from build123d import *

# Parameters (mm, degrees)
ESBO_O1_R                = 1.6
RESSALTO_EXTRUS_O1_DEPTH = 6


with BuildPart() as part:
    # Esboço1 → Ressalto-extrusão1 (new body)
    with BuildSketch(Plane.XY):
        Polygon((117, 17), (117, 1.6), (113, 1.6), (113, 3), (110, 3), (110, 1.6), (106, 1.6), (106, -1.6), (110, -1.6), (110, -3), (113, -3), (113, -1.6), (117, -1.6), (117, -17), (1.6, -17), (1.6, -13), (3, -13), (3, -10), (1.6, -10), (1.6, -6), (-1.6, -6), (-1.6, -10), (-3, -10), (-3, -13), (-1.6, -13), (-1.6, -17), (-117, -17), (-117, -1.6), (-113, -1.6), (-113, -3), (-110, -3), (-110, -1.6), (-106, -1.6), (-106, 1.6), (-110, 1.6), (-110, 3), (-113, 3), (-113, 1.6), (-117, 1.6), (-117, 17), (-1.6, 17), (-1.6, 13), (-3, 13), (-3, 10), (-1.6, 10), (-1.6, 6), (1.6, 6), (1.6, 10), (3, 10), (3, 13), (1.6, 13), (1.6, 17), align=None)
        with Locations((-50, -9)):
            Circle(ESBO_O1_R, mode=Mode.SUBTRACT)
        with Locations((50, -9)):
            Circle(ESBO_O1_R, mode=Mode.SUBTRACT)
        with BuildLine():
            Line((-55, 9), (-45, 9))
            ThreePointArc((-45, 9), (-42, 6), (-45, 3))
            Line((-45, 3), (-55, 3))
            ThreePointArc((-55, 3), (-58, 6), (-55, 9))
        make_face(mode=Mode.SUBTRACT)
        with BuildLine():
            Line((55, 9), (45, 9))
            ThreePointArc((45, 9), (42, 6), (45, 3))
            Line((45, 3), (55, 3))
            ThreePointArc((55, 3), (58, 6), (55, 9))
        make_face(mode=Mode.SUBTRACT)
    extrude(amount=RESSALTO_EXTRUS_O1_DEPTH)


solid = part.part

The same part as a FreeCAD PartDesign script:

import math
import FreeCAD as App
import Part
import Sketcher
from FreeCAD import Vector

doc = App.newDocument("Part")
body = doc.addObject("PartDesign::Body", "Body")

# Sketch on XY plane
sketch1 = body.newObject("Sketcher::SketchObject", "Sketch")
sketch1.AttachmentSupport = (doc.getObject("XY_Plane"), [""])
sketch1.MapMode = "FlatFace"
sketch1.addGeometry([
    Part.LineSegment(Vector(117, 1.6, 0), Vector(117, 17, 0)),  # 0
    Part.LineSegment(Vector(117, 17, 0), Vector(1.6, 17, 0)),  # 1
    Part.LineSegment(Vector(1.6, 17, 0), Vector(1.6, 13, 0)),  # 2
    Part.LineSegment(Vector(1.6, 13, 0), Vector(3, 13, 0)),  # 3
    Part.LineSegment(Vector(3, 13, 0), Vector(3, 10, 0)),  # 4
    Part.LineSegment(Vector(3, 10, 0), Vector(1.6, 10, 0)),  # 5
    Part.LineSegment(Vector(1.6, 10, 0), Vector(1.6, 6, 0)),  # 6
    Part.LineSegment(Vector(1.6, 6, 0), Vector(-1.6, 6, 0)),  # 7
    Part.LineSegment(Vector(-1.6, 6, 0), Vector(-1.6, 10, 0)),  # 8
    Part.LineSegment(Vector(-1.6, 10, 0), Vector(-3, 10, 0)),  # 9
    Part.LineSegment(Vector(-3, 10, 0), Vector(-3, 13, 0)),  # 10
    Part.LineSegment(Vector(-3, 13, 0), Vector(-1.6, 13, 0)),  # 11
    Part.LineSegment(Vector(-1.6, 13, 0), Vector(-1.6, 17, 0)),  # 12
    Part.LineSegment(Vector(-1.6, 17, 0), Vector(-117, 17, 0)),  # 13
    Part.LineSegment(Vector(-117, 17, 0), Vector(-117, 1.6, 0)),  # 14
    Part.LineSegment(Vector(-117, 1.6, 0), Vector(-113, 1.6, 0)),  # 15
    Part.LineSegment(Vector(-113, 1.6, 0), Vector(-113, 3, 0)),  # 16
    Part.LineSegment(Vector(-113, 3, 0), Vector(-110, 3, 0)),  # 17
    Part.LineSegment(Vector(-110, 3, 0), Vector(-110, 1.6, 0)),  # 18
    Part.LineSegment(Vector(-110, 1.6, 0), Vector(-106, 1.6, 0)),  # 19
    Part.LineSegment(Vector(-106, 1.6, 0), Vector(-106, -1.6, 0)),  # 20
    Part.LineSegment(Vector(-106, -1.6, 0), Vector(-110, -1.6, 0)),  # 21
    Part.LineSegment(Vector(-110, -1.6, 0), Vector(-110, -3, 0)),  # 22
    Part.LineSegment(Vector(-110, -3, 0), Vector(-113, -3, 0)),  # 23
    Part.LineSegment(Vector(-113, -3, 0), Vector(-113, -1.6, 0)),  # 24
    Part.LineSegment(Vector(-113, -1.6, 0), Vector(-117, -1.6, 0)),  # 25
    Part.LineSegment(Vector(-117, -1.6, 0), Vector(-117, -17, 0)),  # 26
    Part.LineSegment(Vector(-117, -17, 0), Vector(-1.6, -17, 0)),  # 27
    Part.LineSegment(Vector(-1.6, -17, 0), Vector(-1.6, -13, 0)),  # 28
    Part.LineSegment(Vector(-1.6, -13, 0), Vector(-3, -13, 0)),  # 29
    Part.LineSegment(Vector(-3, -13, 0), Vector(-3, -10, 0)),  # 30
    Part.LineSegment(Vector(-3, -10, 0), Vector(-1.6, -10, 0)),  # 31
    Part.LineSegment(Vector(-1.6, -10, 0), Vector(-1.6, -6, 0)),  # 32
    Part.LineSegment(Vector(-1.6, -6, 0), Vector(1.6, -6, 0)),  # 33
    Part.LineSegment(Vector(1.6, -6, 0), Vector(1.6, -10, 0)),  # 34
    Part.LineSegment(Vector(1.6, -10, 0), Vector(3, -10, 0)),  # 35
    Part.LineSegment(Vector(3, -10, 0), Vector(3, -13, 0)),  # 36
    Part.LineSegment(Vector(3, -13, 0), Vector(1.6, -13, 0)),  # 37
    Part.LineSegment(Vector(1.6, -13, 0), Vector(1.6, -17, 0)),  # 38
    Part.LineSegment(Vector(1.6, -17, 0), Vector(117, -17, 0)),  # 39
    Part.LineSegment(Vector(117, -17, 0), Vector(117, -1.6, 0)),  # 40
    Part.LineSegment(Vector(117, -1.6, 0), Vector(113, -1.6, 0)),  # 41
    Part.LineSegment(Vector(113, -1.6, 0), Vector(113, -3, 0)),  # 42
    Part.LineSegment(Vector(113, -3, 0), Vector(110, -3, 0)),  # 43
    Part.LineSegment(Vector(110, -3, 0), Vector(110, -1.6, 0)),  # 44
    Part.LineSegment(Vector(110, -1.6, 0), Vector(106, -1.6, 0)),  # 45
    Part.LineSegment(Vector(106, -1.6, 0), Vector(106, 1.6, 0)),  # 46
    Part.LineSegment(Vector(106, 1.6, 0), Vector(110, 1.6, 0)),  # 47
    Part.LineSegment(Vector(110, 1.6, 0), Vector(110, 3, 0)),  # 48
    Part.LineSegment(Vector(110, 3, 0), Vector(113, 3, 0)),  # 49
    Part.LineSegment(Vector(113, 3, 0), Vector(113, 1.6, 0)),  # 50
    Part.LineSegment(Vector(113, 1.6, 0), Vector(117, 1.6, 0)),  # 51
    Part.Circle(Vector(50, -9, 0), Vector(0, 0, 1), 1.6),  # 52
    Part.Circle(Vector(-50, -9, 0), Vector(0, 0, 1), 1.6),  # 53
    Part.ArcOfCircle(Part.Circle(Vector(55, 6, 0), Vector(0, 0, 1), 3), math.radians(-90), math.radians(90)),  # 54
    Part.LineSegment(Vector(55, 3, 0), Vector(45, 3, 0)),  # 55
    Part.ArcOfCircle(Part.Circle(Vector(45, 6, 0), Vector(0, 0, 1), 3), math.radians(90), math.radians(270)),  # 56
    Part.LineSegment(Vector(45, 9, 0), Vector(55, 9, 0)),  # 57
    Part.LineSegment(Vector(-55, 9, 0), Vector(-45, 9, 0)),  # 58
    Part.ArcOfCircle(Part.Circle(Vector(-45, 6, 0), Vector(0, 0, 1), 3), math.radians(-90), math.radians(90)),  # 59
    Part.LineSegment(Vector(-45, 3, 0), Vector(-55, 3, 0)),  # 60
    Part.ArcOfCircle(Part.Circle(Vector(-55, 6, 0), Vector(0, 0, 1), 3), math.radians(90), math.radians(270)),  # 61
], False)
sketch1.addConstraint([
    Sketcher.Constraint("Coincident", 0, 2, 1, 1),
    Sketcher.Constraint("Coincident", 1, 2, 2, 1),
    Sketcher.Constraint("Coincident", 2, 2, 3, 1),
    Sketcher.Constraint("Coincident", 3, 2, 4, 1),
    Sketcher.Constraint("Coincident", 4, 2, 5, 1),
    Sketcher.Constraint("Coincident", 5, 2, 6, 1),
    Sketcher.Constraint("Coincident", 6, 2, 7, 1),
    Sketcher.Constraint("Coincident", 7, 2, 8, 1),
    Sketcher.Constraint("Coincident", 8, 2, 9, 1),
    Sketcher.Constraint("Coincident", 9, 2, 10, 1),
    Sketcher.Constraint("Coincident", 10, 2, 11, 1),
    Sketcher.Constraint("Coincident", 11, 2, 12, 1),
    Sketcher.Constraint("Coincident", 12, 2, 13, 1),
    Sketcher.Constraint("Coincident", 13, 2, 14, 1),
    Sketcher.Constraint("Coincident", 14, 2, 15, 1),
    Sketcher.Constraint("Coincident", 15, 2, 16, 1),
    Sketcher.Constraint("Coincident", 16, 2, 17, 1),
    Sketcher.Constraint("Coincident", 17, 2, 18, 1),
    Sketcher.Constraint("Coincident", 18, 2, 19, 1),
    Sketcher.Constraint("Coincident", 19, 2, 20, 1),
    Sketcher.Constraint("Coincident", 20, 2, 21, 1),
    Sketcher.Constraint("Coincident", 21, 2, 22, 1),
    Sketcher.Constraint("Coincident", 22, 2, 23, 1),
    Sketcher.Constraint("Coincident", 23, 2, 24, 1),
    Sketcher.Constraint("Coincident", 24, 2, 25, 1),
    Sketcher.Constraint("Coincident", 25, 2, 26, 1),
    Sketcher.Constraint("Coincident", 26, 2, 27, 1),
    Sketcher.Constraint("Coincident", 27, 2, 28, 1),
    Sketcher.Constraint("Coincident", 28, 2, 29, 1),
    Sketcher.Constraint("Coincident", 29, 2, 30, 1),
    Sketcher.Constraint("Coincident", 30, 2, 31, 1),
    Sketcher.Constraint("Coincident", 31, 2, 32, 1),
    Sketcher.Constraint("Coincident", 32, 2, 33, 1),
    Sketcher.Constraint("Coincident", 33, 2, 34, 1),
    Sketcher.Constraint("Coincident", 34, 2, 35, 1),
    Sketcher.Constraint("Coincident", 35, 2, 36, 1),
    Sketcher.Constraint("Coincident", 36, 2, 37, 1),
    Sketcher.Constraint("Coincident", 37, 2, 38, 1),
    Sketcher.Constraint("Coincident", 38, 2, 39, 1),
    Sketcher.Constraint("Coincident", 39, 2, 40, 1),
    Sketcher.Constraint("Coincident", 40, 2, 41, 1),
    Sketcher.Constraint("Coincident", 41, 2, 42, 1),
    Sketcher.Constraint("Coincident", 42, 2, 43, 1),
    Sketcher.Constraint("Coincident", 43, 2, 44, 1),
    Sketcher.Constraint("Coincident", 44, 2, 45, 1),
    Sketcher.Constraint("Coincident", 45, 2, 46, 1),
    Sketcher.Constraint("Coincident", 46, 2, 47, 1),
    Sketcher.Constraint("Coincident", 47, 2, 48, 1),
    Sketcher.Constraint("Coincident", 48, 2, 49, 1),
    Sketcher.Constraint("Coincident", 49, 2, 50, 1),
    Sketcher.Constraint("Coincident", 50, 2, 51, 1),
    Sketcher.Constraint("Coincident", 51, 2, 0, 1),
    Sketcher.Constraint("Tangent", 54, 1, 55, 1),
    Sketcher.Constraint("Tangent", 55, 2, 56, 2),
    Sketcher.Constraint("Tangent", 56, 1, 57, 1),
    Sketcher.Constraint("Tangent", 57, 2, 54, 2),
    Sketcher.Constraint("Tangent", 58, 2, 59, 2),
    Sketcher.Constraint("Tangent", 59, 1, 60, 1),
    Sketcher.Constraint("Tangent", 60, 2, 61, 2),
    Sketcher.Constraint("Tangent", 61, 1, 58, 1),
    Sketcher.Constraint("Vertical", 0),
    Sketcher.Constraint("Horizontal", 1),
    Sketcher.Constraint("Vertical", 2),
    Sketcher.Constraint("Horizontal", 3),
    Sketcher.Constraint("Vertical", 4),
    Sketcher.Constraint("Horizontal", 5),
    Sketcher.Constraint("Vertical", 6),
    Sketcher.Constraint("Horizontal", 7),
    Sketcher.Constraint("Vertical", 8),
    Sketcher.Constraint("Horizontal", 9),
    Sketcher.Constraint("Vertical", 10),
    Sketcher.Constraint("Horizontal", 11),
    Sketcher.Constraint("Vertical", 12),
    Sketcher.Constraint("Horizontal", 13),
    Sketcher.Constraint("Vertical", 14),
    Sketcher.Constraint("Horizontal", 15),
    Sketcher.Constraint("Vertical", 16),
    Sketcher.Constraint("Horizontal", 17),
    Sketcher.Constraint("Vertical", 18),
    Sketcher.Constraint("Horizontal", 19),
    Sketcher.Constraint("Vertical", 20),
    Sketcher.Constraint("Horizontal", 21),
    Sketcher.Constraint("Vertical", 22),
    Sketcher.Constraint("Horizontal", 23),
    Sketcher.Constraint("Vertical", 24),
    Sketcher.Constraint("Horizontal", 25),
    Sketcher.Constraint("Vertical", 26),
    Sketcher.Constraint("Horizontal", 27),
    Sketcher.Constraint("Vertical", 28),
    Sketcher.Constraint("Horizontal", 29),
    Sketcher.Constraint("Vertical", 30),
    Sketcher.Constraint("Horizontal", 31),
    Sketcher.Constraint("Vertical", 32),
    Sketcher.Constraint("Horizontal", 33),
    Sketcher.Constraint("Vertical", 34),
    Sketcher.Constraint("Horizontal", 35),
    Sketcher.Constraint("Vertical", 36),
    Sketcher.Constraint("Horizontal", 37),
    Sketcher.Constraint("Vertical", 38),
    Sketcher.Constraint("Horizontal", 39),
    Sketcher.Constraint("Vertical", 40),
    Sketcher.Constraint("Horizontal", 41),
    Sketcher.Constraint("Vertical", 42),
    Sketcher.Constraint("Horizontal", 43),
    Sketcher.Constraint("Vertical", 44),
    Sketcher.Constraint("Horizontal", 45),
    Sketcher.Constraint("Vertical", 46),
    Sketcher.Constraint("Horizontal", 47),
    Sketcher.Constraint("Vertical", 48),
    Sketcher.Constraint("Horizontal", 49),
    Sketcher.Constraint("Vertical", 50),
    Sketcher.Constraint("Horizontal", 51),
    Sketcher.Constraint("Horizontal", 55),
    Sketcher.Constraint("Horizontal", 57),
    Sketcher.Constraint("Horizontal", 58),
    Sketcher.Constraint("Horizontal", 60),
    Sketcher.Constraint("Equal", 52, 53),
    Sketcher.Constraint("Equal", 56, 59),
    Sketcher.Constraint("Symmetric", 0, 2, 26, 2, -1, 1),
    Sketcher.Constraint("Symmetric", 2, 2, 28, 2, -1, 1),
    Sketcher.Constraint("Symmetric", 4, 2, 30, 2, -1, 1),
    Sketcher.Constraint("Symmetric", 6, 2, 32, 2, -1, 1),
    Sketcher.Constraint("Symmetric", 8, 2, 34, 2, -1, 1),
    Sketcher.Constraint("Symmetric", 10, 2, 36, 2, -1, 1),
    Sketcher.Constraint("Symmetric", 12, 2, 38, 2, -1, 1),
    Sketcher.Constraint("Symmetric", 14, 2, 40, 2, -1, 1),
    Sketcher.Constraint("Symmetric", 16, 2, 42, 2, -1, 1),
    Sketcher.Constraint("Symmetric", 18, 2, 44, 2, -1, 1),
    Sketcher.Constraint("Symmetric", 20, 2, 46, 2, -1, 1),
    Sketcher.Constraint("Symmetric", 22, 2, 48, 2, -1, 1),
    Sketcher.Constraint("Symmetric", 24, 2, 50, 2, -1, 1),
    Sketcher.Constraint("Symmetric", 52, 3, 53, 3, -2),
    Sketcher.Constraint("Symmetric", 56, 3, 59, 3, -2),
    Sketcher.Constraint("Symmetric", 5, 2, 8, 2, -2),
    Sketcher.Constraint("Symmetric", 3, 2, 10, 2, -2),
    Sketcher.Constraint("Symmetric", 1, 2, 12, 2, -2),
    Sketcher.Constraint("Symmetric", 25, 2, 40, 2, -2),
    Sketcher.Constraint("Symmetric", 23, 2, 42, 2, -2),
    Sketcher.Constraint("Symmetric", 21, 2, 44, 2, -2),
    Sketcher.Constraint("Horizontal", 61, 3, 6, 2),
    Sketcher.Constraint("Horizontal", 15, 2, 18, 2),
    Sketcher.Constraint("Horizontal", 49, 2, 54, 1),
    Sketcher.Constraint("Vertical", 2, 2, 5, 2),
    Sketcher.Constraint("Equal", 15, 19),
    Sketcher.Constraint("Equal", 57, 58),
    Sketcher.Constraint("Equal", 51, 2),
    Sketcher.Constraint("Equal", 49, 4),
    Sketcher.Constraint("Equal", 2, 6),
    Sketcher.Constraint("Equal", 37, 16),
    Sketcher.Constraint("Equal", 33, 20),
    Sketcher.Constraint("Radius", 54, 3.0),
    Sketcher.Constraint("Diameter", 52, 3.2),
    Sketcher.Constraint("DistanceX", 15, 1, 15, 2, 4.0),
    Sketcher.Constraint("DistanceX", 17, 1, 17, 2, 3.0),
    Sketcher.Constraint("DistanceX", 55, 2, 55, 1, 10.0),
    Sketcher.Constraint("DistanceX", 1, 2, 1, 1, 115.4),
    Sketcher.Constraint("DistanceX", 3, 1, 3, 2, 1.4),
    Sketcher.Constraint("DistanceX", 7, 2, 7, 1, 3.2),
    Sketcher.Constraint("DistanceX", -1, 1, 52, 3, 50.0),
    Sketcher.Constraint("DistanceY", 52, 3, -1, 1, 9.0),
    Sketcher.Constraint("DistanceX", -1, 1, 54, 3, 55.0),
])
pad1 = body.newObject("PartDesign::Pad", "Pad")
pad1.Profile = sketch1
pad1.Length = 6

doc.recompute()
